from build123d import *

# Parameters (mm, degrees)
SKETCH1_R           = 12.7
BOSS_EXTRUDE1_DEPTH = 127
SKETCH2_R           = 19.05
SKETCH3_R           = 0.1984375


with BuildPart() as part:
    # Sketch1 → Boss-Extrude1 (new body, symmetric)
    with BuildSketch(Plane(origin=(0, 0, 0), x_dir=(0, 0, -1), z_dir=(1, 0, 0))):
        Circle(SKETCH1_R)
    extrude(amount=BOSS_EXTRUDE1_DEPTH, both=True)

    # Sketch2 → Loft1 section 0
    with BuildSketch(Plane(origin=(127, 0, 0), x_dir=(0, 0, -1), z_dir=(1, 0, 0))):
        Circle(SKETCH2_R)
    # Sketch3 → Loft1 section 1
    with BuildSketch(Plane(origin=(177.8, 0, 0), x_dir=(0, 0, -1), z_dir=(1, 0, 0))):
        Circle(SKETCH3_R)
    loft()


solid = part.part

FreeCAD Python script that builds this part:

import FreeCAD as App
import Part
import Sketcher

V = App.Vector
Q = App.Units.Quantity

doc = App.newDocument("Part")
body = doc.addObject("PartDesign::Body", "Body")

# Sketch on YZ plane
sketch1 = body.newObject("Sketcher::SketchObject", "Sketch")
sketch1.AttachmentSupport = (doc.getObject("YZ_Plane"), [""])
sketch1.MapMode = "FlatFace"
sketch1.addGeometry(Part.Circle(V(0, 0, 0), V(0, 0, 1), 13), False)
sketch1.addConstraint(Sketcher.Constraint("Coincident", 0, 3, -1, 1))
sketch1.addConstraint(Sketcher.Constraint("Diameter", 0, Q("1 in")))
pad1 = body.newObject("PartDesign::Pad", "Pad")
pad1.Profile = sketch1
pad1.Length = Q("10 in")
pad1.Midplane = True

# Sketch on YZ plane
sketch2 = body.newObject("Sketcher::SketchObject", "Sketch001")
sketch2.AttachmentSupport = (doc.getObject("YZ_Plane"), [""])
sketch2.MapMode = "FlatFace"
sketch2.AttachmentOffset = App.Placement(V(0, 0, 5 * 25.4), App.Rotation())
sketch2.addGeometry(Part.Circle(V(0, 0, 0), V(0, 0, 1), 19), False)
sketch2.addConstraint(Sketcher.Constraint("Coincident", 0, 3, -1, 1))
sketch2.addConstraint(Sketcher.Constraint("Diameter", 0, Q("1.5 in")))

# Sketch on YZ plane
sketch3 = body.newObject("Sketcher::SketchObject", "Sketch002")
sketch3.AttachmentSupport = (doc.getObject("YZ_Plane"), [""])
sketch3.MapMode = "FlatFace"
sketch3.AttachmentOffset = App.Placement(V(0, 0, 7 * 25.4), App.Rotation())
sketch3.addGeometry(Part.Circle(V(0, 0, 0), V(0, 0, 1), 0.2), False)
sketch3.addConstraint(Sketcher.Constraint("Coincident", 0, 3, -1, 1))
sketch3.addConstraint(Sketcher.Constraint("Diameter", 0, Q("0.015625 in")))

additiveloft = body.newObject("PartDesign::AdditiveLoft", "AdditiveLoft")
additiveloft.Profile = sketch2
additiveloft.Sections = [sketch3]

doc.recompute()
